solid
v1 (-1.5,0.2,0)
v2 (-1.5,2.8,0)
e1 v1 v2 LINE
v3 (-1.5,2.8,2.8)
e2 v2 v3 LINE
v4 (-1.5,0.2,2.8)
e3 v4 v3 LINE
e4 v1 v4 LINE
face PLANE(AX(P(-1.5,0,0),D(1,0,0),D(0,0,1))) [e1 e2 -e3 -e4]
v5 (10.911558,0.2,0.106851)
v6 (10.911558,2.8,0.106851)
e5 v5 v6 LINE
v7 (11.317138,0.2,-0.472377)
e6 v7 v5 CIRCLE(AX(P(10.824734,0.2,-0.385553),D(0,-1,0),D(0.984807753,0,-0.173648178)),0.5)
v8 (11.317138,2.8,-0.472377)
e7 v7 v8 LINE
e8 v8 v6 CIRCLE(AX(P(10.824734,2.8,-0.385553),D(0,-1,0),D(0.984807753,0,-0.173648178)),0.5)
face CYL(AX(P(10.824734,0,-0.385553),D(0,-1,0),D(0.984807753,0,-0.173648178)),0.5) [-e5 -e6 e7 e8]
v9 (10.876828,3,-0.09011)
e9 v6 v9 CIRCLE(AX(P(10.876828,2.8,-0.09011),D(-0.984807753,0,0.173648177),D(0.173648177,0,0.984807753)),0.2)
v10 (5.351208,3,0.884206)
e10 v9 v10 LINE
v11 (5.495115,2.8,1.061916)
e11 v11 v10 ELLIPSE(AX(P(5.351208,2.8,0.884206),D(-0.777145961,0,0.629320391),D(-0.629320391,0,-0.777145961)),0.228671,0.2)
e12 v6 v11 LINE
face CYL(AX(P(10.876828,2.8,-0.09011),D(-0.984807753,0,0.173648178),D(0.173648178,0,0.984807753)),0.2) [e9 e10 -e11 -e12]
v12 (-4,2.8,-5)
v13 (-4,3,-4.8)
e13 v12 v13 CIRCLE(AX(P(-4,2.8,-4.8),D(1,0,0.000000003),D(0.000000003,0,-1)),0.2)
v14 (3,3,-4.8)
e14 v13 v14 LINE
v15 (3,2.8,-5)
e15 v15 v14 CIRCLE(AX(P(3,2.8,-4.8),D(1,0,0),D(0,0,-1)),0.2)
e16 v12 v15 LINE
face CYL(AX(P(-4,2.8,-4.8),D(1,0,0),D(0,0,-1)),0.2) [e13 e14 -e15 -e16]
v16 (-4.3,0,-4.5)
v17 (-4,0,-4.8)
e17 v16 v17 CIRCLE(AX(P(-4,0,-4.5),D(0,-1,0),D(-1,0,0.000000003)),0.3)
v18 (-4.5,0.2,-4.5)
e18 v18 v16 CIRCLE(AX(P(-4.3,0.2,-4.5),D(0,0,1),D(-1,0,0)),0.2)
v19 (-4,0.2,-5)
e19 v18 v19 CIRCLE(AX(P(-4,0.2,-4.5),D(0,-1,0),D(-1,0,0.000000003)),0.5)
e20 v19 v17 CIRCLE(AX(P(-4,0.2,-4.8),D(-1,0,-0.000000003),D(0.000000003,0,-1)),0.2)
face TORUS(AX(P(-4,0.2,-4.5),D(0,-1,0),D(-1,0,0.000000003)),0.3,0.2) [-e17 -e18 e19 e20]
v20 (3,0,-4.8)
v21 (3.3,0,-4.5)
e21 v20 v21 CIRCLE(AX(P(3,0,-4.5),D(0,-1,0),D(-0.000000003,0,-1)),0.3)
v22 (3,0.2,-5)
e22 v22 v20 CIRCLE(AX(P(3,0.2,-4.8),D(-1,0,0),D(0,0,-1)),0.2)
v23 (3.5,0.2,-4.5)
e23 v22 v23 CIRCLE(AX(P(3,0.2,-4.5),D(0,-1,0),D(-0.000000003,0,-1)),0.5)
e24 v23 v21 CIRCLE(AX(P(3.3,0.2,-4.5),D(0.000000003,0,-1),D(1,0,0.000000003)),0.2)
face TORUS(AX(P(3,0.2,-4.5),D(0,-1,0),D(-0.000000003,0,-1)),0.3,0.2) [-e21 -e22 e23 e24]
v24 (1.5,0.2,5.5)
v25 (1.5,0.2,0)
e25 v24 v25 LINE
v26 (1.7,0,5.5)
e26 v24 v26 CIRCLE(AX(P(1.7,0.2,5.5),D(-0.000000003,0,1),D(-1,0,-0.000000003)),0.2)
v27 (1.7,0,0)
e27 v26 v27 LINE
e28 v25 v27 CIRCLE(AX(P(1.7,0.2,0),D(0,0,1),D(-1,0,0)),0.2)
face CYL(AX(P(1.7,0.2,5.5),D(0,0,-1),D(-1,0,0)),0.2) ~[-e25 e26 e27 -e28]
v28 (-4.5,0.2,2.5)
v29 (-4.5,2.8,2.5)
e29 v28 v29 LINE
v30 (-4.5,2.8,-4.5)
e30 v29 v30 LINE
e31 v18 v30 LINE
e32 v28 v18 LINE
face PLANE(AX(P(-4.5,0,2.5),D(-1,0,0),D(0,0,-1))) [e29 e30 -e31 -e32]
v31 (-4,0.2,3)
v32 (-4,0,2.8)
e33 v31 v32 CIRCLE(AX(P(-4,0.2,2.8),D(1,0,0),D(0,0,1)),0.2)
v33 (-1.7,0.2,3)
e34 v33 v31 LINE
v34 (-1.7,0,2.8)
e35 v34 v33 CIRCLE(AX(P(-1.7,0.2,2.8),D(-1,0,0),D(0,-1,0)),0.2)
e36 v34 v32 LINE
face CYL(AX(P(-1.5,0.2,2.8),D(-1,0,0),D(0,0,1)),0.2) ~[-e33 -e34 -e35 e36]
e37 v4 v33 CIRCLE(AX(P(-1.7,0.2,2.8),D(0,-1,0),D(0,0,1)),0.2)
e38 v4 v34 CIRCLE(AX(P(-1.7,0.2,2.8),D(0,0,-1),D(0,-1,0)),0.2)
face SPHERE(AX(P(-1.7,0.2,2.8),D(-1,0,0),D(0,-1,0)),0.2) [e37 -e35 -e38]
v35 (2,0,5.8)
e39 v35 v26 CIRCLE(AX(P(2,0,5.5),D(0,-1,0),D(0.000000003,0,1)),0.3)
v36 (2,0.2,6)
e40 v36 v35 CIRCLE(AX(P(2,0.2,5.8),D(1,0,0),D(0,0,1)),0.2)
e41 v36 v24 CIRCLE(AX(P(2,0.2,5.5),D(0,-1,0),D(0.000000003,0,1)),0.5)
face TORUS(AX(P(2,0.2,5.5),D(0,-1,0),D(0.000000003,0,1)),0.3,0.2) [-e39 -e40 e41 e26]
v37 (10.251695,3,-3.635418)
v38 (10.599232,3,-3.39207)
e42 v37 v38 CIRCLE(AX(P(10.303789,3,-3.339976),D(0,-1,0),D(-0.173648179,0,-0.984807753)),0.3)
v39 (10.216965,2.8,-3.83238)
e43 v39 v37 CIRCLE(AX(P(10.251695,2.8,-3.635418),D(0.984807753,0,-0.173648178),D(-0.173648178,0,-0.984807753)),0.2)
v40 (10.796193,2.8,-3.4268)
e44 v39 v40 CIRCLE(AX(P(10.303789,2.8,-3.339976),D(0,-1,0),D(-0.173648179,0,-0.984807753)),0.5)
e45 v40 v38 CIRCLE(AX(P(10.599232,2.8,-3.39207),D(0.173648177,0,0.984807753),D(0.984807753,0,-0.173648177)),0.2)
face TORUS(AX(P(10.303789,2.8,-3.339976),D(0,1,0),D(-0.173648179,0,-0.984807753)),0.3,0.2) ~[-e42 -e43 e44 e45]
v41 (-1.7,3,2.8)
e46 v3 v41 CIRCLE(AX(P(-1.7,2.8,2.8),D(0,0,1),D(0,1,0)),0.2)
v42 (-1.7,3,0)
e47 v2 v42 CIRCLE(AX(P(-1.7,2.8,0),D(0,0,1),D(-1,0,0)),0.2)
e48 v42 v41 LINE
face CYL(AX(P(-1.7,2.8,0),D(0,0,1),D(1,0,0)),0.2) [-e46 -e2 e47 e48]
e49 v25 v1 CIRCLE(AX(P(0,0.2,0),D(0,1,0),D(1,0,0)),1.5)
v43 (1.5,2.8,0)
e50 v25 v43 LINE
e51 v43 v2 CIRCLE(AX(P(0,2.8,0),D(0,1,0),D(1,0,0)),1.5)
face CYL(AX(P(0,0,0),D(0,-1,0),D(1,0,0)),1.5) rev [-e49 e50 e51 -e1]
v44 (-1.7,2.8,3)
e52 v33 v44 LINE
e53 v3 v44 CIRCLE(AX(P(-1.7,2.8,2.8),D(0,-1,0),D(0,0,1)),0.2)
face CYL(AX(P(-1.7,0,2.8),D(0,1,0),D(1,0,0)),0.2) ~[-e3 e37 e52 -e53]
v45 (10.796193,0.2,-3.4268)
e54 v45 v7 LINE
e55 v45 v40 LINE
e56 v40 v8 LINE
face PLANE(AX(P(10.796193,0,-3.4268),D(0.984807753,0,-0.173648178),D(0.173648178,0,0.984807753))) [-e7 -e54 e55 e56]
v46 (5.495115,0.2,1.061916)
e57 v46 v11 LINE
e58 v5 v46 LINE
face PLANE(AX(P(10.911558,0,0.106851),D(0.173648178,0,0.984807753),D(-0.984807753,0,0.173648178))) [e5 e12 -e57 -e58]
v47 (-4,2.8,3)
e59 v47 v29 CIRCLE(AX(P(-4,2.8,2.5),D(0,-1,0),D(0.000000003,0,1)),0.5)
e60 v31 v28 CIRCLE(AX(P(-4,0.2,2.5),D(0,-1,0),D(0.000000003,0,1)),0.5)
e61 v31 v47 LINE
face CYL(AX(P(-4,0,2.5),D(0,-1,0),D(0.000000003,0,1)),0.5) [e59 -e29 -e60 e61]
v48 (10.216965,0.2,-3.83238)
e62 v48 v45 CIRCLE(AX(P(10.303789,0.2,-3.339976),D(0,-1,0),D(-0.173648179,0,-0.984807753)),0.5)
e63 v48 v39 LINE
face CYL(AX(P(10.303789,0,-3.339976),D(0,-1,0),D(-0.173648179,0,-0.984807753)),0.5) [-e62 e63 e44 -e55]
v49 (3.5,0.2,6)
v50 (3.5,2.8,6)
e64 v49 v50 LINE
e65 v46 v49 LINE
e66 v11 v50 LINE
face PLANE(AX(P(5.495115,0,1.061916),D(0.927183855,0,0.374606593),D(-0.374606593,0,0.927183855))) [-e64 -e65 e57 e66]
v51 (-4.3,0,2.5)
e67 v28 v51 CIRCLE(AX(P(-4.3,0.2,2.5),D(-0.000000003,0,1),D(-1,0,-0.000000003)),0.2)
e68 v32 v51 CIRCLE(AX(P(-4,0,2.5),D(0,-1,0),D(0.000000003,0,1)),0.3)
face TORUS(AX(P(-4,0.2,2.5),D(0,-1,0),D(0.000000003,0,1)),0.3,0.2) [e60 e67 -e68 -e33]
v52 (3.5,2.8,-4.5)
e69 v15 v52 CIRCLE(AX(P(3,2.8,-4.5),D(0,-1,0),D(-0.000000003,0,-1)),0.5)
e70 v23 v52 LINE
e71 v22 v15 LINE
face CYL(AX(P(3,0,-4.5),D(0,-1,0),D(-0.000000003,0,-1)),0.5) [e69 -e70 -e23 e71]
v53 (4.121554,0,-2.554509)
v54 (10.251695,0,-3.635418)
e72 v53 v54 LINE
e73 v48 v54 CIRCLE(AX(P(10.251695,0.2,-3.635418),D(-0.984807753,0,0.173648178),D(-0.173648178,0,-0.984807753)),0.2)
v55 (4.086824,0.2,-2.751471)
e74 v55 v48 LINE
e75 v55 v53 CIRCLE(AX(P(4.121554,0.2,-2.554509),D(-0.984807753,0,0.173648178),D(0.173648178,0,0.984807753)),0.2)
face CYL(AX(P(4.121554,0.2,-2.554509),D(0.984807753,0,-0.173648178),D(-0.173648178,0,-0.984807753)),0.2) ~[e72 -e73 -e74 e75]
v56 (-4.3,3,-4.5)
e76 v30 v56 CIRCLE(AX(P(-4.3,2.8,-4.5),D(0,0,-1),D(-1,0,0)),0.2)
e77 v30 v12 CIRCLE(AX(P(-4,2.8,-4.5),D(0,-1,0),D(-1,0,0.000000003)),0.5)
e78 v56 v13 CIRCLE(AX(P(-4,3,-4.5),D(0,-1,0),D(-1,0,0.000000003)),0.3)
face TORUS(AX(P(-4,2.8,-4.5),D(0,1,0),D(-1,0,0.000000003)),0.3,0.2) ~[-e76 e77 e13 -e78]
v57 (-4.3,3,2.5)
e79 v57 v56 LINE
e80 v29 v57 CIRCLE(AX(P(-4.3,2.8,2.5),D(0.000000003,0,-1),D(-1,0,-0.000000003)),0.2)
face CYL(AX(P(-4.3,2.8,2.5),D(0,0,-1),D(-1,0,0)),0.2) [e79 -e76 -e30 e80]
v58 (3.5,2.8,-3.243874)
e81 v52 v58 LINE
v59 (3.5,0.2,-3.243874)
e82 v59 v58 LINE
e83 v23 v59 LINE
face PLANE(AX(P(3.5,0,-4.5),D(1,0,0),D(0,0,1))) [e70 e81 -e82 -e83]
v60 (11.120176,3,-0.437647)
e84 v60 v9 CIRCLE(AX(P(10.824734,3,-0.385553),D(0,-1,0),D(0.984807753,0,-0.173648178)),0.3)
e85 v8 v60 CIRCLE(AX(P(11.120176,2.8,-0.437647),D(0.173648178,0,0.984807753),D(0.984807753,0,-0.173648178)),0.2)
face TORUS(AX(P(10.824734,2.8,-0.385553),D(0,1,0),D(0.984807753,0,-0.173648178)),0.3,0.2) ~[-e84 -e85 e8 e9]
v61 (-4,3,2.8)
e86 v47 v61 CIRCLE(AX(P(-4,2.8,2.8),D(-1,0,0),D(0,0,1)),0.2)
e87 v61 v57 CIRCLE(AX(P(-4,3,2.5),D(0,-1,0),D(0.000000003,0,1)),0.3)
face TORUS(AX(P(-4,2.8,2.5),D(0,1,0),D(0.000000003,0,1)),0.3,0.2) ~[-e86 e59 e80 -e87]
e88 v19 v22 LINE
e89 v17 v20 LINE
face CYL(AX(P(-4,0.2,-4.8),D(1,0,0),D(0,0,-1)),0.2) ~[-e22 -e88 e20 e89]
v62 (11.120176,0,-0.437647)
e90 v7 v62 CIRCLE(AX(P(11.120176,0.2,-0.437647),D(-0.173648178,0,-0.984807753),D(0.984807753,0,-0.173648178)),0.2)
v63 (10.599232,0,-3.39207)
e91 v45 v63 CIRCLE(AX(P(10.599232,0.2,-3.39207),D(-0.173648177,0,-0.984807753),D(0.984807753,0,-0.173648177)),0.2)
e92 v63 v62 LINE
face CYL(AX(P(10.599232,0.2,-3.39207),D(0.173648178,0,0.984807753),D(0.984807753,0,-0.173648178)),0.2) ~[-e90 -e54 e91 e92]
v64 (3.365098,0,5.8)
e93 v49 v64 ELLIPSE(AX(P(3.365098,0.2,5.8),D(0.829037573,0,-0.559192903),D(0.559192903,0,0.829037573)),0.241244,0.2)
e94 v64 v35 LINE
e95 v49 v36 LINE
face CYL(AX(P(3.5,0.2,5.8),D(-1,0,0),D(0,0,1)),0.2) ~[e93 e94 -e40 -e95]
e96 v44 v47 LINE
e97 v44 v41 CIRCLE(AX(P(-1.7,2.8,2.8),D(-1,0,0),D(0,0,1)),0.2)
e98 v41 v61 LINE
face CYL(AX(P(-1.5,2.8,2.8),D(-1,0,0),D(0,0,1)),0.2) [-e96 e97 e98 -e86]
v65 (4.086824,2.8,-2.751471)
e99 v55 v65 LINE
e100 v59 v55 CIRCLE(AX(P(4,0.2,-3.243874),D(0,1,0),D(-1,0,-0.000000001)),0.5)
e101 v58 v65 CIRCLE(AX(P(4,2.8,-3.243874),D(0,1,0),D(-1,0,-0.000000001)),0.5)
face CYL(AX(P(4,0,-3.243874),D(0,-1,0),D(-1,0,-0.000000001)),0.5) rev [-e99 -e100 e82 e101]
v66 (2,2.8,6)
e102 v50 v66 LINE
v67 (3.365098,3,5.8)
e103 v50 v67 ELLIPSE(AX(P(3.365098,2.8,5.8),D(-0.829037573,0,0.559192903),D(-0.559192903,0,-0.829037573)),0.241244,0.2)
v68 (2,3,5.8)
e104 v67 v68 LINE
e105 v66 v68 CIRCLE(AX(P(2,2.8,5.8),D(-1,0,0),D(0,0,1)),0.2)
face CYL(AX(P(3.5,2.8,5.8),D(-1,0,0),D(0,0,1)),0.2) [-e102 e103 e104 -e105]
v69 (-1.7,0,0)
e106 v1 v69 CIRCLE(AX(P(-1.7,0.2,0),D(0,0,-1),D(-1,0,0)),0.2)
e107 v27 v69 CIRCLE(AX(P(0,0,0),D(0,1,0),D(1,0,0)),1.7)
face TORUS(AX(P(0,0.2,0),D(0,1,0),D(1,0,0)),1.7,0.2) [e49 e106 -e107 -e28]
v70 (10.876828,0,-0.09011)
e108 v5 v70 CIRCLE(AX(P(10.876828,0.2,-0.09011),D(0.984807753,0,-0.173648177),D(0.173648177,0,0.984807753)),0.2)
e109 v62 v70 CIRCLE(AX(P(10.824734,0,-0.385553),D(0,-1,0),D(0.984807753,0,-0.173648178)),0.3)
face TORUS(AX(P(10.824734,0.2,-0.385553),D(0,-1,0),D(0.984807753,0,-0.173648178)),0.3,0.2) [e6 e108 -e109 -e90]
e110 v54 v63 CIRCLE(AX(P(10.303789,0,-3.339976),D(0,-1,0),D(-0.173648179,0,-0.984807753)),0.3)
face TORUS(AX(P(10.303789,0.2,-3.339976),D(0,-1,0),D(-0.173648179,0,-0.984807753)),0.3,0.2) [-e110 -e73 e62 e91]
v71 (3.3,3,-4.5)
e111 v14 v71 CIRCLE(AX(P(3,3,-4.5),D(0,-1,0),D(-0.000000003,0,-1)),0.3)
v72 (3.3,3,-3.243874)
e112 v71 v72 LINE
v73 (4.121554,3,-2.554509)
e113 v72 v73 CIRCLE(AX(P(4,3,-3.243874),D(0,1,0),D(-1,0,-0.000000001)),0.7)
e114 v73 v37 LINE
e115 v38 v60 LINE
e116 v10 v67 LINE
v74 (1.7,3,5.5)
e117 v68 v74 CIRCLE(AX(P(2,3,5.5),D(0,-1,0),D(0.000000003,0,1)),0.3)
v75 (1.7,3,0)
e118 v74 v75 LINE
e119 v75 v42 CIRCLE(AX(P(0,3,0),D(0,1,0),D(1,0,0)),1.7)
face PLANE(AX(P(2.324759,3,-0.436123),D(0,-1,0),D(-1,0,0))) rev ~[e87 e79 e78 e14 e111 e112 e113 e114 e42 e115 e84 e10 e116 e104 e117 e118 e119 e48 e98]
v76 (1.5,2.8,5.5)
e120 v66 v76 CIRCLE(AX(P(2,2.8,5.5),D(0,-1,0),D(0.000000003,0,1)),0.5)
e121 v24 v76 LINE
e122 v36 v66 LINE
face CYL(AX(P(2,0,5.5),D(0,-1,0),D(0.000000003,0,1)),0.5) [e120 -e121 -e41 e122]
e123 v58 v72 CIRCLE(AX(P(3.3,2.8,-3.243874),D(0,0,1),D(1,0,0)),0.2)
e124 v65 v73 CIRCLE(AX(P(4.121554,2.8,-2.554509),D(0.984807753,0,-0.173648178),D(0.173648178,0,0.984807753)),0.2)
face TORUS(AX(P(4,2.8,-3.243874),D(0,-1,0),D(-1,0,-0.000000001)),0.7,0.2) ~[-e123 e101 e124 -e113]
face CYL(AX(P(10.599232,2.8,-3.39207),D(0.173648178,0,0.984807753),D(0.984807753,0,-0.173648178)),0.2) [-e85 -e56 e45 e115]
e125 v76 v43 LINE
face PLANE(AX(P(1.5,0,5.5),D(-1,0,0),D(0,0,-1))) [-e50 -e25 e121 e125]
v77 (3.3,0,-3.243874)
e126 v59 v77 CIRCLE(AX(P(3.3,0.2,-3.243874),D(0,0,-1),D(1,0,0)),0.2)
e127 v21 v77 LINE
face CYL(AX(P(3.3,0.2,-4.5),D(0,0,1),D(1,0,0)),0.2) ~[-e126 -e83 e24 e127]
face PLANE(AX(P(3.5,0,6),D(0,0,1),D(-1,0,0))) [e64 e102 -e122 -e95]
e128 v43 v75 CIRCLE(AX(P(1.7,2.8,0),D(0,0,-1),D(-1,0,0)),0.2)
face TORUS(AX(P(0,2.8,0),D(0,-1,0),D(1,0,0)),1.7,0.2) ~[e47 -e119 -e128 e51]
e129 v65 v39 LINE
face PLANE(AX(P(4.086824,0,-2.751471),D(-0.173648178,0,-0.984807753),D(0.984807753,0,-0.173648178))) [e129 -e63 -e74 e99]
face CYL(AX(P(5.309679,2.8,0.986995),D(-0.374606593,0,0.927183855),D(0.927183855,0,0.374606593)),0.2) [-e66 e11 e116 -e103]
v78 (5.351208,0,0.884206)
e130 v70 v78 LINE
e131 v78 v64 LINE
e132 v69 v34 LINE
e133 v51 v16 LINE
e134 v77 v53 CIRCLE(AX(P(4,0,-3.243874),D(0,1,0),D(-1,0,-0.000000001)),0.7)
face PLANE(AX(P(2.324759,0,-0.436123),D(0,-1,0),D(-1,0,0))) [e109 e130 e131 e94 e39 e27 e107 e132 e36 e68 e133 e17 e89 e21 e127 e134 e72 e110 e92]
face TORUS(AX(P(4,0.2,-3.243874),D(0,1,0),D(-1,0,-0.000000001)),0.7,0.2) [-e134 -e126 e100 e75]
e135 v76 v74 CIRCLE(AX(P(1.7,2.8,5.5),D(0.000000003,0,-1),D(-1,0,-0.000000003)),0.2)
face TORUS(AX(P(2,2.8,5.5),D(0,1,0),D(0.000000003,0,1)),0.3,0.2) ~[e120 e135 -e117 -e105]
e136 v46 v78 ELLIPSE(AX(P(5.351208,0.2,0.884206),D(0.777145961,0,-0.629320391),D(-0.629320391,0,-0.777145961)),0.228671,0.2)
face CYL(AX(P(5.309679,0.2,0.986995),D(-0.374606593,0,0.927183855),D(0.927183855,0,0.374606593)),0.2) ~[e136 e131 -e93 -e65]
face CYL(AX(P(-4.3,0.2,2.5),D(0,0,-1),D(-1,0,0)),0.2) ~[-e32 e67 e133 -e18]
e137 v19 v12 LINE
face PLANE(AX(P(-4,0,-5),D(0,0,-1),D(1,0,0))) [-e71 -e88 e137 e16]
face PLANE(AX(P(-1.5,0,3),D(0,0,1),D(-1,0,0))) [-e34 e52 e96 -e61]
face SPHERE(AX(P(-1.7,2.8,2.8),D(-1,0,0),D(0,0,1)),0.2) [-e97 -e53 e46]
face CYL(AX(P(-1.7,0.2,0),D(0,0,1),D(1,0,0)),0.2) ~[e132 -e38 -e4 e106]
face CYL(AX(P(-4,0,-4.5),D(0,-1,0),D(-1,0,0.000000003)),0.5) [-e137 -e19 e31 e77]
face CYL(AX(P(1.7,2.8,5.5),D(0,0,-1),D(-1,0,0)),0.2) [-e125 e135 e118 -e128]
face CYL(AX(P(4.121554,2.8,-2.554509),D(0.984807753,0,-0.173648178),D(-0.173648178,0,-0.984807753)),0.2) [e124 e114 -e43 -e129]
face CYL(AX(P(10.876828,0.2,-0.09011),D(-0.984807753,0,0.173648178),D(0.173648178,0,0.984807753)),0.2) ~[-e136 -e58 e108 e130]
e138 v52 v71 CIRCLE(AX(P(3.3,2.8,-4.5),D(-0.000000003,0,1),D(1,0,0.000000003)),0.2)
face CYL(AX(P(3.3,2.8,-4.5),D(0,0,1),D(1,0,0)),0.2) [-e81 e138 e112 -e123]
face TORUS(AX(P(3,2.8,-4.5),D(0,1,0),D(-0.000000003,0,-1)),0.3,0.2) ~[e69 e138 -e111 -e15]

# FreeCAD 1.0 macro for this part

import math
import FreeCAD as App
import Part
import Sketcher
from FreeCAD import Vector
Q = App.Units.Quantity


def edges_at(feature, points):
    """Names of the edges that pass closest to the given points."""
    edges = feature.Shape.Edges
    near = lambda p: min(range(len(edges)), key=lambda i: edges[i].distToShape(Part.Vertex(*p))[0])
    return sorted({f"Edge{near(p) + 1}" for p in points})

doc = App.newDocument("Part")
body = doc.addObject("PartDesign::Body", "Body")

# Sketch on XZ plane
sketch1 = doc.addObject("Sketcher::SketchObject", "Sketch")
body.addObject(sketch1)
sketch1.AttachmentSupport = (doc.XZ_Plane, [""])
sketch1.MapMode = "FlatFace"
sketch1.addGeometry([
    Part.LineSegment(Vector(-1.5, 3, 0), Vector(-1.5, 0, 0)),  # 0
    Part.ArcOfCircle(Part.Circle(Vector(0, 0, 0), Vector(0, 0, 1), 1.5), math.radians(180), math.radians(360)),  # 1
    Part.LineSegment(Vector(1.5, 0, 0), Vector(1.5, 5.5, 0)),  # 2
    Part.ArcOfCircle(Part.Circle(Vector(2, 5.5, 0), Vector(0, 0, 1), 0.5), math.radians(90), math.radians(180)),  # 3
    Part.LineSegment(Vector(2, 6, 0), Vector(3.5, 6, 0)),  # 4
    Part.LineSegment(Vector(3.5, 6, 0), Vector(5.5, 1.06, 0)),  # 5
    Part.LineSegment(Vector(5.5, 1.06, 0), Vector(10.91, 0.11, 0)),  # 6
    Part.ArcOfCircle(Part.Circle(Vector(10.82, -0.39, 0), Vector(0, 0, 1), 0.5), math.radians(-10), math.radians(80)),  # 7
    Part.LineSegment(Vector(11.32, -0.47, 0), Vector(10.8, -3.43, 0)),  # 8
    Part.ArcOfCircle(Part.Circle(Vector(10.3, -3.34, 0), Vector(0, 0, 1), 0.5), math.radians(-100), math.radians(-10)),  # 9
    Part.LineSegment(Vector(10.22, -3.83, 0), Vector(4.09, -2.75, 0)),  # 10
    Part.ArcOfCircle(Part.Circle(Vector(4, -3.24, 0), Vector(0, 0, 1), 0.5), math.radians(80), math.radians(180)),  # 11
    Part.LineSegment(Vector(3.5, -3.24, 0), Vector(3.5, -4.5, 0)),  # 12
    Part.ArcOfCircle(Part.Circle(Vector(3, -4.5, 0), Vector(0, 0, 1), 0.5), math.radians(-90), math.radians(0)),  # 13
    Part.LineSegment(Vector(3, -5, 0), Vector(-4, -5, 0)),  # 14
    Part.ArcOfCircle(Part.Circle(Vector(-4, -4.5, 0), Vector(0, 0, 1), 0.5), math.radians(180), math.radians(270)),  # 15
    Part.LineSegment(Vector(-4.5, -4.5, 0), Vector(-4.5, 2.5, 0)),  # 16
    Part.ArcOfCircle(Part.Circle(Vector(-4, 2.5, 0), Vector(0, 0, 1), 0.5), math.radians(90), math.radians(180)),  # 17
    Part.LineSegment(Vector(-4, 3, 0), Vector(-1.5, 3, 0)),  # 18
], False)
sketch1.addConstraint([
    Sketcher.Constraint("Tangent", 0, 2, 1, 1),
    Sketcher.Constraint("Tangent", 1, 2, 2, 1),
    Sketcher.Constraint("Tangent", 2, 2, 3, 2),
    Sketcher.Constraint("Tangent", 3, 1, 4, 1),
    Sketcher.Constraint("Coincident", 4, 2, 5, 1),
    Sketcher.Constraint("Coincident", 5, 2, 6, 1),
    Sketcher.Constraint("Tangent", 6, 2, 7, 2),
    Sketcher.Constraint("Tangent", 7, 1, 8, 1),
    Sketcher.Constraint("Tangent", 8, 2, 9, 2),
    Sketcher.Constraint("Tangent", 9, 1, 10, 1),
    Sketcher.Constraint("Tangent", 10, 2, 11, 1),
    Sketcher.Constraint("Tangent", 11, 2, 12, 1),
    Sketcher.Constraint("Tangent", 12, 2, 13, 2),
    Sketcher.Constraint("Tangent", 13, 1, 14, 1),
    Sketcher.Constraint("Tangent", 14, 2, 15, 2),
    Sketcher.Constraint("Tangent", 15, 1, 16, 1),
    Sketcher.Constraint("Tangent", 16, 2, 17, 2),
    Sketcher.Constraint("Tangent", 17, 1, 18, 1),
    Sketcher.Constraint("Coincident", 18, 2, 0, 1),
    Sketcher.Constraint("Vertical", 0),
    Sketcher.Constraint("Vertical", 2),
    Sketcher.Constraint("Horizontal", 4),
    Sketcher.Constraint("Vertical", 12),
    Sketcher.Constraint("Horizontal", 14),
    Sketcher.Constraint("Vertical", 16),
    Sketcher.Constraint("Horizontal", 18),
    Sketcher.Constraint("Coincident", 1, 3, -1, 1),
    Sketcher.Constraint("Equal", 3, 7),
    Sketcher.Constraint("Equal", 7, 9),
    Sketcher.Constraint("Equal", 9, 11),
    Sketcher.Constraint("Equal", 11, 13),
    Sketcher.Constraint("Equal", 13, 15),
    Sketcher.Constraint("Equal", 15, 17),
    Sketcher.Constraint("Perpendicular", 6, 8),
    Sketcher.Constraint("Perpendicular", 8, 10),
    Sketcher.Constraint("Vertical", 4, 2, 11, 2),
    Sketcher.Constraint("Equal", 14, 16),
    Sketcher.Constraint("Radius", 1, 1.5),
    Sketcher.Constraint("Radius", 3, 0.5),
    Sketcher.Constraint("DistanceX", 14, 2, 14, 1, 7.0),
    Sketcher.Constraint("DistanceY", 0, 2, 0, 1, 3.0),
    Sketcher.Constraint("Angle", 5, Q("-68 deg")),
    Sketcher.Constraint("Angle", 6, Q("-10 deg")),
    Sketcher.Constraint("Distance", 8, 3.0),
    Sketcher.Constraint("DistanceX", 4, 1, 4, 2, 1.5),
    Sketcher.Constraint("DistanceY", 2, 1, 2, 2, 5.5),
    Sketcher.Constraint("Distance", 6, 5.5),
    Sketcher.Constraint("DistanceY", 8, 2, -1, 1, 3.4268),
])
pad1 = doc.addObject("PartDesign::Pad", "Pad")
body.addObject(pad1)
pad1.Profile = sketch1
pad1.Length = 3
pad1.Reversed = True
doc.recompute()

fillet = doc.addObject("PartDesign::Fillet", "Fillet")
body.addObject(fillet)
fillet.Base = (pad1, edges_at(pad1, [
    (3.354, 3, -4.854),
    (-0.5, 3, -5),
    (7.152, 0, -3.292),
    (10.591, 0, -3.75),
    (11.057, 0, -1.95),
    (11.234, 0, -0.099),
    (8.203, 0, 0.584),
    (-4.354, 3, -4.854),
    (4.498, 0, 3.531),
    (2.75, 0, 6),
    (1.646, 0, 5.854),
    (1.5, 0, 2.75),
    (0, 0, -1.5),
    (-1.5, 0, 1.5),
    (-2.75, 0, 3),
    (-4.354, 0, 2.854),
    (-4.5, 3, -1),
    (-4.5, 0, -1),
    (-4.354, 0, -4.854),
    (-0.5, 0, -5),
    (3.354, 0, -4.854),
    (3.5, 0, -3.872),
    (3.679, 0, -2.861),
    (-4.354, 3, 2.854),
    (-2.75, 3, 3),
    (-1.5, 1.5, 3),
    (-1.5, 3, 1.5),
    (0, 3, -1.5),
    (1.5, 3, 2.75),
    (1.646, 3, 5.854),
    (3.679, 3, -2.861),
    (2.75, 3, 6),
    (4.498, 3, 3.531),
    (8.203, 3, 0.584),
    (11.234, 3, -0.099),
    (11.057, 3, -1.95),
    (10.591, 3, -3.75),
    (7.152, 3, -3.292),
    (3.5, 3, -3.872),
]))
fillet.Radius = 0.2

doc.recompute()
